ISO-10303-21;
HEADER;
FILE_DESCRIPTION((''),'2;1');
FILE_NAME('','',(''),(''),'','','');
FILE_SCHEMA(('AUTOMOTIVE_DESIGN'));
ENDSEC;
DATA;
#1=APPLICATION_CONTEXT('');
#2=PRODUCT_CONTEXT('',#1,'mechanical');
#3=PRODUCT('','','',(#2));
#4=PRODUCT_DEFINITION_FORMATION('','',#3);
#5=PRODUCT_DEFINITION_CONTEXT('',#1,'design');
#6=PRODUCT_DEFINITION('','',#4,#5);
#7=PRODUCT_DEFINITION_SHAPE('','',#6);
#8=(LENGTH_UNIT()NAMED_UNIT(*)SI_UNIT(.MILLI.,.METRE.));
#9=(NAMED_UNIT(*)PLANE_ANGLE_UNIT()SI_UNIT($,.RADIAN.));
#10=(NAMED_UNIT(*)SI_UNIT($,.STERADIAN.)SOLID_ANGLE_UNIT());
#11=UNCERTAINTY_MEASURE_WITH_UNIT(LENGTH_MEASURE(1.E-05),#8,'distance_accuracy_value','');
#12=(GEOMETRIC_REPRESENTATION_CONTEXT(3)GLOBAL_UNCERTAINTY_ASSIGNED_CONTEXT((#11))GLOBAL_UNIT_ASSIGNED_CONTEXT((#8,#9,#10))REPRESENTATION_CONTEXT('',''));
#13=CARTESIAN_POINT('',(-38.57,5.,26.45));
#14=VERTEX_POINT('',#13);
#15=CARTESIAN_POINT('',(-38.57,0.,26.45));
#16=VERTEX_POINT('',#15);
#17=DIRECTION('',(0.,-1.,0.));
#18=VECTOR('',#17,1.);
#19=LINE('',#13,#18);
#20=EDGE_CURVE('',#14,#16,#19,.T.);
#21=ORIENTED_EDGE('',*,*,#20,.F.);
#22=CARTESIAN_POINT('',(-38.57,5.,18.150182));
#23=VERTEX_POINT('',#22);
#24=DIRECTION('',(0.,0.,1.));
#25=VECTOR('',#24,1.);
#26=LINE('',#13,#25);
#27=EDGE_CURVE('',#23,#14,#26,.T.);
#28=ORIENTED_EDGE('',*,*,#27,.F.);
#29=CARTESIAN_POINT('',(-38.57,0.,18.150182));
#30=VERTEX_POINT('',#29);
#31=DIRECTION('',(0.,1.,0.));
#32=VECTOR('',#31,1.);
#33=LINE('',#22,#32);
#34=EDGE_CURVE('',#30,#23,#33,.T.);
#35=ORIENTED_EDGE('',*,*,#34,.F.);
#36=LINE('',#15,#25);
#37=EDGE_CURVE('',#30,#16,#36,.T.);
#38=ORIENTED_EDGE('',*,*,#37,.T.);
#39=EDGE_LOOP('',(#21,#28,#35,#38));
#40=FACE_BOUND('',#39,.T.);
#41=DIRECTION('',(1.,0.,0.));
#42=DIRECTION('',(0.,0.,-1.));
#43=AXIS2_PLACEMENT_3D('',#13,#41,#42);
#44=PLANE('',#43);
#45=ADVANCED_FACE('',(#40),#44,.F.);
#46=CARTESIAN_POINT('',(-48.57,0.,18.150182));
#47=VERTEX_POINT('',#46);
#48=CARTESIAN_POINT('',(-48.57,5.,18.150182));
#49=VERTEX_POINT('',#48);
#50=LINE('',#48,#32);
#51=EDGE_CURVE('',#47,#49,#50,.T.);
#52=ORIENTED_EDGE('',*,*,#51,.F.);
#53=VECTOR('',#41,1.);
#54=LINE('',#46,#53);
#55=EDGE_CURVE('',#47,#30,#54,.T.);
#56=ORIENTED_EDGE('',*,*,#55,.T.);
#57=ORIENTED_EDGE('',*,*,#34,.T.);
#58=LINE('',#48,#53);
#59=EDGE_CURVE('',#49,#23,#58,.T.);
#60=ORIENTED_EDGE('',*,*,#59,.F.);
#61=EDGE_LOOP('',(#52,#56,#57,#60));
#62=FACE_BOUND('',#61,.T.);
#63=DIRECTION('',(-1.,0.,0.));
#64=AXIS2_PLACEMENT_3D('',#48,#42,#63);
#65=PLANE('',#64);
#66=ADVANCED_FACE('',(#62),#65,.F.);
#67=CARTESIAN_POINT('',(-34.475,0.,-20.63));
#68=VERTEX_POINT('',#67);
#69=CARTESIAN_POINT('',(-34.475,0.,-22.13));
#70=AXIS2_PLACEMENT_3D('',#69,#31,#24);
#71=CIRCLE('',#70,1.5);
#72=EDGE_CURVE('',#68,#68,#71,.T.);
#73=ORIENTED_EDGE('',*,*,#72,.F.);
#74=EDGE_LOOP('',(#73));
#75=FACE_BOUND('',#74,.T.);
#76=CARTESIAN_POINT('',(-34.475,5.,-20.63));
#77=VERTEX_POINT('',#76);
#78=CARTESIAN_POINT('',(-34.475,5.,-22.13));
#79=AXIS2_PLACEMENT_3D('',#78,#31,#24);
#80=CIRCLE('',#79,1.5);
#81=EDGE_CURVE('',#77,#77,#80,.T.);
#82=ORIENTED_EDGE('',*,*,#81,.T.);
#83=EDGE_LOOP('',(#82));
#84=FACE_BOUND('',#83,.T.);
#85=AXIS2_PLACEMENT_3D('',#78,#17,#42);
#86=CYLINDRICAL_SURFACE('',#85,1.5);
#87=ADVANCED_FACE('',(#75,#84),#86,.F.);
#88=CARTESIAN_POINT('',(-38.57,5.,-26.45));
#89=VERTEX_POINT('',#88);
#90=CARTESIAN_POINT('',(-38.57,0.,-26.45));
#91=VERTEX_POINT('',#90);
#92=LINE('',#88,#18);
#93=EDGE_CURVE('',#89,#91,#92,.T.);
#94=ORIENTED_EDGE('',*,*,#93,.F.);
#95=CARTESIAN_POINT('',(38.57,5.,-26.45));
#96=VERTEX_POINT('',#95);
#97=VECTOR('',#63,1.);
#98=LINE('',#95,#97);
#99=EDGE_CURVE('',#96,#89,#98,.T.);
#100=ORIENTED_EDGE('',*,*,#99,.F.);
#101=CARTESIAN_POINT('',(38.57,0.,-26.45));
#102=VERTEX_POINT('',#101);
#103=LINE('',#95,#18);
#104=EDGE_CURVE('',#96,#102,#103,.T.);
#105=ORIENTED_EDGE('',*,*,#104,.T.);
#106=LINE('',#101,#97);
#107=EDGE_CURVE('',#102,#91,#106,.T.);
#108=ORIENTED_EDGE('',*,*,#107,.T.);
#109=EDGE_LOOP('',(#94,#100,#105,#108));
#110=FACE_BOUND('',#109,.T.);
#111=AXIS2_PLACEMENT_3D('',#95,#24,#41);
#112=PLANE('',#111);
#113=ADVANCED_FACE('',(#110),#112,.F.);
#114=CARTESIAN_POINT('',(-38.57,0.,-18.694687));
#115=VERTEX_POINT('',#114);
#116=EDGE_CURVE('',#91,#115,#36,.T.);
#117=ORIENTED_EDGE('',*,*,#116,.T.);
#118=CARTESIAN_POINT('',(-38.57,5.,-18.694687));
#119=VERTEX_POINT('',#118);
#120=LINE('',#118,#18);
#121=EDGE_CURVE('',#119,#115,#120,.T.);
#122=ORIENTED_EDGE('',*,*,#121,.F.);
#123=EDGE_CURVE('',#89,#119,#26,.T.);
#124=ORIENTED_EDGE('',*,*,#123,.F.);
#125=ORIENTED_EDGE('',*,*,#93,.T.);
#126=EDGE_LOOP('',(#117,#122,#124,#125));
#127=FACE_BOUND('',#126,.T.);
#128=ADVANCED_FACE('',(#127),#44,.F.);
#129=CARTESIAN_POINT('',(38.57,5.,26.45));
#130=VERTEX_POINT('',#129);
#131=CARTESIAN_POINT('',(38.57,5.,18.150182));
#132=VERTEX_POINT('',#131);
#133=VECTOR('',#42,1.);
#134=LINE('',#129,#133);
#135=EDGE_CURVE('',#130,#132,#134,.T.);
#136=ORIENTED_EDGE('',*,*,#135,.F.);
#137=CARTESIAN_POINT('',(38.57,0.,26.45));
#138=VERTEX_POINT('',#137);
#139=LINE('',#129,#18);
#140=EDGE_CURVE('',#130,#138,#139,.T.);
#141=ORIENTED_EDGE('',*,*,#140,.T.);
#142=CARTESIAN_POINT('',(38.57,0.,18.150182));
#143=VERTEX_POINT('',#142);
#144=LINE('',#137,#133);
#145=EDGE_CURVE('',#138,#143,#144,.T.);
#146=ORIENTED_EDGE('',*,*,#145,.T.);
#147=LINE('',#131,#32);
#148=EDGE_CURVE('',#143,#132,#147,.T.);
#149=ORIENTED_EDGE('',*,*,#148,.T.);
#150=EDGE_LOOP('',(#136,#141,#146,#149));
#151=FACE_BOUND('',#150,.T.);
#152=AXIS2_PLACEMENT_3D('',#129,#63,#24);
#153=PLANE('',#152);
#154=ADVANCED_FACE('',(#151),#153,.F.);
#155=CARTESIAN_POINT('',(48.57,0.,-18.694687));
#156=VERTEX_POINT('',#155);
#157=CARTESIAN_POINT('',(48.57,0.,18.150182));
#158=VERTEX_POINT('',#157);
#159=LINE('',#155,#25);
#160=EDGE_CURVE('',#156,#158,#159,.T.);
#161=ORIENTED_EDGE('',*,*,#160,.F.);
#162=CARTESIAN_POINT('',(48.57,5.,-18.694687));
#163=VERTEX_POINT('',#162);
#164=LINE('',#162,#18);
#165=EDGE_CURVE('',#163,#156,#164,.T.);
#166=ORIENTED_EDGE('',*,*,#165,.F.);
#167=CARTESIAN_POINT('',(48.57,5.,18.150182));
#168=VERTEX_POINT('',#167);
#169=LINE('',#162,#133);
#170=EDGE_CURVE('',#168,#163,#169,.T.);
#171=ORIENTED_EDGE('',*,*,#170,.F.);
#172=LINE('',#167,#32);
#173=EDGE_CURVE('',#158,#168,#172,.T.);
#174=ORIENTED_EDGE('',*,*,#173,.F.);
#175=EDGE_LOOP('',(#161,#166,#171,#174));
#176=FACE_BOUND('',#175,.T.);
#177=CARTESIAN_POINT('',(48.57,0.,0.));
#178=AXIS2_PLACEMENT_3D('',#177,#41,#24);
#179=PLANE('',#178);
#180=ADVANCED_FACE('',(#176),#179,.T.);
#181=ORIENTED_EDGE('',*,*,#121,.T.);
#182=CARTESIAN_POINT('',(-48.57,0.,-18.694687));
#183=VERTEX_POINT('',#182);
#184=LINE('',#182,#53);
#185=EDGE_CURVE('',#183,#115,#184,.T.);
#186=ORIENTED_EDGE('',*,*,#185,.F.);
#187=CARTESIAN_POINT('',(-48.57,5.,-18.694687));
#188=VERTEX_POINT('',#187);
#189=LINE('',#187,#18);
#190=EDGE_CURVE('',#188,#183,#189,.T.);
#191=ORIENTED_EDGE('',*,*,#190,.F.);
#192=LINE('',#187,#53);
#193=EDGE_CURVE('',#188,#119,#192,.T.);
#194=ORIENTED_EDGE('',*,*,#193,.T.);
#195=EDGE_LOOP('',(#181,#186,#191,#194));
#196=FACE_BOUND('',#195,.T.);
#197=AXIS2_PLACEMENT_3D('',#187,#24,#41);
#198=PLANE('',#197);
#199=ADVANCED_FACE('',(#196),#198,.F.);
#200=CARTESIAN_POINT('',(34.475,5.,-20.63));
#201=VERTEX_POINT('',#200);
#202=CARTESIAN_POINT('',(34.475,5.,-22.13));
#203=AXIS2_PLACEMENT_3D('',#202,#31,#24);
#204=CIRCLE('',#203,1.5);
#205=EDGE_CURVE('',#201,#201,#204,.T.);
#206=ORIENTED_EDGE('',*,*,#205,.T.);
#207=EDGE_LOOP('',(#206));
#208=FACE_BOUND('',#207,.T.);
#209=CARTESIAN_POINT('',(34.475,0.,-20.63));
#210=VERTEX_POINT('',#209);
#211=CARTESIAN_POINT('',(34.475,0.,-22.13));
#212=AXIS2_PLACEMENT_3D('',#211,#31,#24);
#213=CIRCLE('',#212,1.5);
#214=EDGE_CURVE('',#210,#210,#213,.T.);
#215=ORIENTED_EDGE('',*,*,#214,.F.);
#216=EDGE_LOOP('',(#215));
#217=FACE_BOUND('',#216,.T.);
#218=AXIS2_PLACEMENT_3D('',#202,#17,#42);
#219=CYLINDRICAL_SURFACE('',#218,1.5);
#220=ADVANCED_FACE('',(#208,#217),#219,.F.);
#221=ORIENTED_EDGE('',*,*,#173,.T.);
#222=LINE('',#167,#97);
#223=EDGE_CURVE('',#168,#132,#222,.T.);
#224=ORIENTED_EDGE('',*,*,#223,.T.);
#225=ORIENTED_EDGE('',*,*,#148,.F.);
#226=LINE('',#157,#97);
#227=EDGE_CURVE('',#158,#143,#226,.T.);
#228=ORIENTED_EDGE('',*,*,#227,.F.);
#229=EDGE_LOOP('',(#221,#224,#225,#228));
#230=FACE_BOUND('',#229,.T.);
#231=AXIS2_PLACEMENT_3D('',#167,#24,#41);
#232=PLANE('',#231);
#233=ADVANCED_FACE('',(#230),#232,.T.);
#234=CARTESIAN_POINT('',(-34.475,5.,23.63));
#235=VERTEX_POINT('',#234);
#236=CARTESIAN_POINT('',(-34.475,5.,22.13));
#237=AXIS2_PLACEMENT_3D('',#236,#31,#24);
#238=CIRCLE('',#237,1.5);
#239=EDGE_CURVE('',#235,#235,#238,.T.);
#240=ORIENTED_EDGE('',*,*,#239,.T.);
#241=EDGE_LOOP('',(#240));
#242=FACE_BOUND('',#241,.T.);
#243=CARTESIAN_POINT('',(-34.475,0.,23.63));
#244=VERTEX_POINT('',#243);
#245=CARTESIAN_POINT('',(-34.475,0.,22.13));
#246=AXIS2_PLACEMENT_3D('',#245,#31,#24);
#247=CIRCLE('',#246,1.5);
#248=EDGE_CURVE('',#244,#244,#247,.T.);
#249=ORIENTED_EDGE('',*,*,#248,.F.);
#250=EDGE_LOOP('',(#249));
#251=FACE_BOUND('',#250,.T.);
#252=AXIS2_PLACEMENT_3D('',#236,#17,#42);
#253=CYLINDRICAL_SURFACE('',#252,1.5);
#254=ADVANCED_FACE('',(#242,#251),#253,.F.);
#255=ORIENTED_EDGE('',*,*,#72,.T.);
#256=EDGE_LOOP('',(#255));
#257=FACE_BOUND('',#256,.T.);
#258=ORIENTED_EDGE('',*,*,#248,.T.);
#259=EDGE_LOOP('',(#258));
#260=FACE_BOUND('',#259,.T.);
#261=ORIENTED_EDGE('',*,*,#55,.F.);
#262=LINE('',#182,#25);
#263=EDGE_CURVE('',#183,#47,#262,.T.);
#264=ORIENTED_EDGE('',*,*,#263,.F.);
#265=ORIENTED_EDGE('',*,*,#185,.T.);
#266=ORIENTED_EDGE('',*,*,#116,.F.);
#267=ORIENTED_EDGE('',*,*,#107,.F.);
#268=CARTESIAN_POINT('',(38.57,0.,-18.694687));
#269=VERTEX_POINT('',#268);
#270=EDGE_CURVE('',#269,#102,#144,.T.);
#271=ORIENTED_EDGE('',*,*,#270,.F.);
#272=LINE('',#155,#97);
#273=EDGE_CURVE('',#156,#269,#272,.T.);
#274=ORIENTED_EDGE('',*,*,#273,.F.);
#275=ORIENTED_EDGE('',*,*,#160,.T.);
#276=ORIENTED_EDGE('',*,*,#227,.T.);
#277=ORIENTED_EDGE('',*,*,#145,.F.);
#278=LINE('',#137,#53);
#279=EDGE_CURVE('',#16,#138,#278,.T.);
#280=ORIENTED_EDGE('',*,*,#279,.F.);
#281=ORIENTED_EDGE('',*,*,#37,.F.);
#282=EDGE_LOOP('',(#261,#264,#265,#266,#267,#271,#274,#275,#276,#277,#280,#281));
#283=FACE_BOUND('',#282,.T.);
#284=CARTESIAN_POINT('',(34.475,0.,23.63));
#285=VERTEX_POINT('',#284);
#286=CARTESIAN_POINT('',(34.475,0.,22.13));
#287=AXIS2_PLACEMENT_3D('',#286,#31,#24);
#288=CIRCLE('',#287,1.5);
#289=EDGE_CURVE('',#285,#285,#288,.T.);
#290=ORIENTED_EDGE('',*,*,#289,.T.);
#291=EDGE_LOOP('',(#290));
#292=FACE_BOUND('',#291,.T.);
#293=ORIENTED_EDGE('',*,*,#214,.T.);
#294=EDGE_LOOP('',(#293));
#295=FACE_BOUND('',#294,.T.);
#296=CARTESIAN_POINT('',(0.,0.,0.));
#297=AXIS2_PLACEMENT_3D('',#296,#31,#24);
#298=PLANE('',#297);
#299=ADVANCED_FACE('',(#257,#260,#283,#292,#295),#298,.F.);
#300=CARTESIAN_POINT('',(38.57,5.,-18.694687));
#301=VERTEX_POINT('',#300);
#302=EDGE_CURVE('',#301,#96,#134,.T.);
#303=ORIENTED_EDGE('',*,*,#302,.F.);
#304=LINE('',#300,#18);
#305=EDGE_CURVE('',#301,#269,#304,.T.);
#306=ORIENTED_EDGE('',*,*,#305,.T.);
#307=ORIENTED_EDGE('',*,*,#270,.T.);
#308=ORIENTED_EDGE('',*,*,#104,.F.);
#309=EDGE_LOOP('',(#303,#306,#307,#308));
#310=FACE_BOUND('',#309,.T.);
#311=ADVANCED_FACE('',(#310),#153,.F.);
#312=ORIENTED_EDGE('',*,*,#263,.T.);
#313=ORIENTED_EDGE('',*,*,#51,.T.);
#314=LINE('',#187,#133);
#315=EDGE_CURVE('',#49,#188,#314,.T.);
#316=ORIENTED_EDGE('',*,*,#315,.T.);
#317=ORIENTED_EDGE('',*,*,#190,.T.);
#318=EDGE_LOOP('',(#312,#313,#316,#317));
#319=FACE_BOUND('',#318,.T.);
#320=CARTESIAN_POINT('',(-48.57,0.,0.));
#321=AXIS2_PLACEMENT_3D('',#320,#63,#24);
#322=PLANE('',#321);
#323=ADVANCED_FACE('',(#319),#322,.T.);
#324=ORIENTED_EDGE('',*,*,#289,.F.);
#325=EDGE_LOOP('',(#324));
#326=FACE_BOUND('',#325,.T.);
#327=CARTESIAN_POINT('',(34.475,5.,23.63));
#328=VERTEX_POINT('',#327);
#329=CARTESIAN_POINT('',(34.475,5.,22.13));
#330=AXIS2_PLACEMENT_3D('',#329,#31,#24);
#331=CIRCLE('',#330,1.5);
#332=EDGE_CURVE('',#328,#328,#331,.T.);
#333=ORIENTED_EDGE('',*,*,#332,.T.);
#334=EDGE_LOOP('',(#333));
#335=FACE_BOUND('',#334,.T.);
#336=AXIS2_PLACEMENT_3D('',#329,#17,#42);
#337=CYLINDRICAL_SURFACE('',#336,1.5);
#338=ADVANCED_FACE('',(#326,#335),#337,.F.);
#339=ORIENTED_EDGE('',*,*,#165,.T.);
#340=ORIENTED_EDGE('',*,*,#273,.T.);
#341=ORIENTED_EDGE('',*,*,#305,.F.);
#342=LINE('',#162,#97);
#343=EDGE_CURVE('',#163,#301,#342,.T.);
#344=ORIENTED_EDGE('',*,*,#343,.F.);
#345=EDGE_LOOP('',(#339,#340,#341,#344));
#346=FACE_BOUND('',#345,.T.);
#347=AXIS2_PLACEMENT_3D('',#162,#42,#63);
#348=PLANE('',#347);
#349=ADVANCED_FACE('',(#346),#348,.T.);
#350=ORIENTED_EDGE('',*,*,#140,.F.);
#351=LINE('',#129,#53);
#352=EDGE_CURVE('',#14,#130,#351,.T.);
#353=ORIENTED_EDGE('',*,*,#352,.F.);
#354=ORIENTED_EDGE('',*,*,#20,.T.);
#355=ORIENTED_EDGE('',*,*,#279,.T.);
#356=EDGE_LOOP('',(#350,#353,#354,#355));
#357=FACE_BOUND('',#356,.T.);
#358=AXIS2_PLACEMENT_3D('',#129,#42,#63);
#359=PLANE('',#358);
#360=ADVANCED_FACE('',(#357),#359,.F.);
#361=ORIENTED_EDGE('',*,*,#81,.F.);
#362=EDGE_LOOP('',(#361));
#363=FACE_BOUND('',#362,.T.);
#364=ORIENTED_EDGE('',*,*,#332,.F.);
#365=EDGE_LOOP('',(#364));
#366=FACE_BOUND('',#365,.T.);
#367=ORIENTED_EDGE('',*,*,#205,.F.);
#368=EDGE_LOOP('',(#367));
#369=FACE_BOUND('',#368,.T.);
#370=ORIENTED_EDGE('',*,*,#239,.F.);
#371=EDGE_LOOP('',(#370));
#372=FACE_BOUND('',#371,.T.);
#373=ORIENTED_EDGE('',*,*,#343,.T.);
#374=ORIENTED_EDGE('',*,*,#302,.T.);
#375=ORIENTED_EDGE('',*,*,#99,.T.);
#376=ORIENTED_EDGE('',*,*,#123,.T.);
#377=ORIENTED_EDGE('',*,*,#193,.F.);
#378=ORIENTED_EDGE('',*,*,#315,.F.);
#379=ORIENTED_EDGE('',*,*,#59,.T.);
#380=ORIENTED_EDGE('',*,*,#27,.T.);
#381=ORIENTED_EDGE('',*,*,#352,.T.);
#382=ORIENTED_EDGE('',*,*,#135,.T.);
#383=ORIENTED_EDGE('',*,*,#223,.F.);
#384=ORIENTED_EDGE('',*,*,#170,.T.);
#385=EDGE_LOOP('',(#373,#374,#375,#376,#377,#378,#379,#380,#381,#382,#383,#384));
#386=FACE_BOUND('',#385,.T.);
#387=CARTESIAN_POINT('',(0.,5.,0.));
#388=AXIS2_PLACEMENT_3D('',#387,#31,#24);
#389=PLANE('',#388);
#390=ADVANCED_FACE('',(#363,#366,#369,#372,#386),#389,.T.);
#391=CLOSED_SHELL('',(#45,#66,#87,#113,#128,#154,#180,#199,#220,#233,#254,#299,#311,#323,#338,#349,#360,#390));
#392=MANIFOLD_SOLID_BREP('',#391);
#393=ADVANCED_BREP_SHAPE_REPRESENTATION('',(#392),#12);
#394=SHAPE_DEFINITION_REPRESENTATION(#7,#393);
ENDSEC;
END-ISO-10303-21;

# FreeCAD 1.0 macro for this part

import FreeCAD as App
import Part
import Sketcher
Q = App.Units.Quantity

doc = App.newDocument("Part")
body = doc.addObject("PartDesign::Body", "Body")

sketch1 = doc.addObject("Sketcher::SketchObject", "Sketch")
body.addObject(sketch1)
sketch1.AttachmentSupport = (doc.XZ_Plane, [""])
sketch1.MapMode = "FlatFace"
sketch1.addGeometry([
    Part.LineSegment(App.Vector(-38.6, -26.4, 0), App.Vector(-38.6, 26.4, 0)),
    Part.LineSegment(App.Vector(-38.6, 26.4, 0), App.Vector(38.6, 26.4, 0)),
    Part.LineSegment(App.Vector(38.6, 26.4, 0), App.Vector(38.6, -26.4, 0)),
    Part.LineSegment(App.Vector(38.6, -26.4, 0), App.Vector(-38.6, -26.4, 0)),
    Part.Circle(App.Vector(-34.5, 22.1, 0), App.Vector(0, 0, 1), 1.5),
    Part.Circle(App.Vector(34.5, 22.1, 0), App.Vector(0, 0, 1), 1.5),
    Part.Circle(App.Vector(-34.5, -22.1, 0), App.Vector(0, 0, 1), 1.5),
    Part.Circle(App.Vector(34.5, -22.1, 0), App.Vector(0, 0, 1), 1.5),
], False)
sketch1.addConstraint([
    Sketcher.Constraint("Coincident", 0, 2, 1, 1),
    Sketcher.Constraint("Coincident", 1, 2, 2, 1),
    Sketcher.Constraint("Coincident", 2, 2, 3, 1),
    Sketcher.Constraint("Coincident", 3, 2, 0, 1),
    Sketcher.Constraint("Vertical", 0),
    Sketcher.Constraint("Horizontal", 1),
    Sketcher.Constraint("Vertical", 2),
    Sketcher.Constraint("Horizontal", 3),
    Sketcher.Constraint("Equal", 4, 5),
    Sketcher.Constraint("Equal", 5, 6),
    Sketcher.Constraint("Equal", 6, 7),
    Sketcher.Constraint("Symmetric", 5, 3, 6, 3, -1, 1),
    Sketcher.Constraint("Symmetric", 4, 3, 7, 3, -1, 1),
    Sketcher.Constraint("Symmetric", 0, 2, 2, 2, -1, 1),
    Sketcher.Constraint("Symmetric", 4, 3, 5, 3, -2),
    Sketcher.Constraint("Diameter", 4, Q("3 mm")),
    Sketcher.Constraint("DistanceY", 0, 1, 0, 2, Q("52.9 mm")),
    Sketcher.Constraint("DistanceX", 1, 1, 1, 2, Q("77.14 mm")),
    Sketcher.Constraint("DistanceY", -1, 1, 4, 3, Q("22.13 mm")),
    Sketcher.Constraint("DistanceX", 4, 3, 5, 3, Q("68.95 mm")),
])
pad1 = doc.addObject("PartDesign::Pad", "Pad")
body.addObject(pad1)
pad1.Profile = sketch1
pad1.Length = 5
pad1.Reversed = True

sketch2 = doc.addObject("Sketcher::SketchObject", "Sketch001")
body.addObject(sketch2)
sketch2.AttachmentSupport = (doc.YZ_Plane, [""])
sketch2.MapMode = "FlatFace"
sketch2.AttachmentOffset = App.Placement(App.Vector(0, 0, -38.57), App.Rotation())
sketch2.addGeometry([
    Part.LineSegment(App.Vector(5, -19, 0), App.Vector(0, -19, 0)),
    Part.LineSegment(App.Vector(0, -19, 0), App.Vector(0, 18, 0)),
    Part.LineSegment(App.Vector(0, 18, 0), App.Vector(5, 18, 0)),
    Part.LineSegment(App.Vector(5, 18, 0), App.Vector(5, -19, 0)),
], False)
sketch2.addConstraint([
    Sketcher.Constraint("Coincident", 0, 2, 1, 1),
    Sketcher.Constraint("Coincident", 1, 2, 2, 1),
    Sketcher.Constraint("Coincident", 2, 2, 3, 1),
    Sketcher.Constraint("Coincident", 3, 2, 0, 1),
    Sketcher.Constraint("Horizontal", 0),
    Sketcher.Constraint("Vertical", 1),
    Sketcher.Constraint("Horizontal", 2),
    Sketcher.Constraint("Vertical", 3),
    Sketcher.Constraint("PointOnObject", 0, 2, -2),
    Sketcher.Constraint("DistanceX", 0, 2, 0, 1, Q("5 mm")),
    Sketcher.Constraint("DistanceY", 1, 1, 1, 2, Q("36.844869 mm")),
    Sketcher.Constraint("DistanceY", -1, 1, 1, 2, Q("18.150182 mm")),
])
pad2 = doc.addObject("PartDesign::Pad", "Pad001")
body.addObject(pad2)
pad2.Profile = sketch2
pad2.Length = 10
pad2.Reversed = True
doc.recompute()

mirrored = doc.addObject("PartDesign::Mirrored", "Mirrored")
body.addObject(mirrored)
mirrored.Originals = [pad2]
mirrored.MirrorPlane = (doc.YZ_Plane, [""])
body.Tip = mirrored

doc.recompute()
